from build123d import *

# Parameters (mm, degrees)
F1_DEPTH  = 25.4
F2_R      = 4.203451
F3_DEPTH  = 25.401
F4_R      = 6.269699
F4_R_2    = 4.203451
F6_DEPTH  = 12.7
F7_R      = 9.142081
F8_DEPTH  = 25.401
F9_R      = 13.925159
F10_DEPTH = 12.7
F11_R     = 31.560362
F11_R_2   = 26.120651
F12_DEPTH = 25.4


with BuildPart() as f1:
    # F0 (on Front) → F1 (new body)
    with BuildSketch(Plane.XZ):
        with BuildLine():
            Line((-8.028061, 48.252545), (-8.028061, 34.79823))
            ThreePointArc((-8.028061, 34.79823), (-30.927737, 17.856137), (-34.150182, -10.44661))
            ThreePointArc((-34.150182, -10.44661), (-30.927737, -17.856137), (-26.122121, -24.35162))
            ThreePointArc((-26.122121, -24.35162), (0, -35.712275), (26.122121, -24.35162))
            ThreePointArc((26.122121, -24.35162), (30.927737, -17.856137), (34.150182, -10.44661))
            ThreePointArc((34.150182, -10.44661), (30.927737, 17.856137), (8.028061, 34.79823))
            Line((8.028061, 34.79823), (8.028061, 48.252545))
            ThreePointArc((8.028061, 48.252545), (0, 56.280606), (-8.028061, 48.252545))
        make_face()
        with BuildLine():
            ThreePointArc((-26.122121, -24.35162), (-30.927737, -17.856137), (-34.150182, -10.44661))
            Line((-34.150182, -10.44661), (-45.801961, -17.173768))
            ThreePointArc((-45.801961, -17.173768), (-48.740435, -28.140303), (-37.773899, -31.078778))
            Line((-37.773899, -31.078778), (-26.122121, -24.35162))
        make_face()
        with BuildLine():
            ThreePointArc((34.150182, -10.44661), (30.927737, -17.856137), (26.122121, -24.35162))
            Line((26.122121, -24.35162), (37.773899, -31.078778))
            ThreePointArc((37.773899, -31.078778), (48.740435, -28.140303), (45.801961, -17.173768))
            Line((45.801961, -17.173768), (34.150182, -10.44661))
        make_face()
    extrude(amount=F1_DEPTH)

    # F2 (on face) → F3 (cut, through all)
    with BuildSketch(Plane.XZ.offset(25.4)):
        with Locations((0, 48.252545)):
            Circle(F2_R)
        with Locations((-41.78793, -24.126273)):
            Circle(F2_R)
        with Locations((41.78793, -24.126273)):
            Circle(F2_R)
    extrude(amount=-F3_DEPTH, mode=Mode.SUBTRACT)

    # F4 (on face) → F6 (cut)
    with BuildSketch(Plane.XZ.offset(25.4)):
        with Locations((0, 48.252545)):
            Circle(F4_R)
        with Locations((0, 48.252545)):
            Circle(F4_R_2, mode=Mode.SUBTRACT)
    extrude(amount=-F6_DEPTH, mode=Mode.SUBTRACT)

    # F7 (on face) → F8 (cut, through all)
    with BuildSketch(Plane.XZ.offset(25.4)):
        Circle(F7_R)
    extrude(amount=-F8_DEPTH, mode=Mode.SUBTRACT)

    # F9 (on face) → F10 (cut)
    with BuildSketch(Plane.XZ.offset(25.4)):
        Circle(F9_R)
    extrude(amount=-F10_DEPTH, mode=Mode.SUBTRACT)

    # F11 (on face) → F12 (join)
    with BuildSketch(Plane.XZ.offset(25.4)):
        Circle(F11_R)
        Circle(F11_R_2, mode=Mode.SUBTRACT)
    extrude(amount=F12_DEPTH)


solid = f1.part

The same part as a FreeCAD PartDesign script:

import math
import FreeCAD as App
import Part
import Sketcher
from FreeCAD import Vector
Q = App.Units.Quantity

doc = App.newDocument("Part")
body = doc.addObject("PartDesign::Body", "Body")

# Sketch on XZ plane
sketch1 = doc.addObject("Sketcher::SketchObject", "Sketch")
body.addObject(sketch1)
sketch1.AttachmentSupport = (doc.XZ_Plane, [""])
sketch1.MapMode = "FlatFace"
sketch1.addGeometry(Part.LineSegment(Vector(-8, 48, 0), Vector(-8, 35, 0)), False)
sketch1.addGeometry(Part.ArcOfCircle(Part.Circle(Vector(0, 0, 0), Vector(0, 0, 1), 36), math.radians(103), math.radians(197)), False)
sketch1.addGeometry(Part.LineSegment(Vector(-34, -10, 0), Vector(-46, -17, 0)), False)
sketch1.addGeometry(Part.ArcOfCircle(Part.Circle(Vector(-42, -24, 0), Vector(0, 0, 1), 8), math.radians(120), math.radians(300)), False)
sketch1.addGeometry(Part.LineSegment(Vector(-38, -31, 0), Vector(-26, -24, 0)), False)
sketch1.addGeometry(Part.ArcOfCircle(Part.Circle(Vector(0, 0, 0), Vector(0, 0, 1), 36), math.radians(-137), math.radians(-43)), False)
sketch1.addGeometry(Part.LineSegment(Vector(26, -24, 0), Vector(38, -31, 0)), False)
sketch1.addGeometry(Part.ArcOfCircle(Part.Circle(Vector(42, -24, 0), Vector(0, 0, 1), 8), math.radians(-120), math.radians(60)), False)
sketch1.addGeometry(Part.LineSegment(Vector(46, -17, 0), Vector(34, -10, 0)), False)
sketch1.addGeometry(Part.ArcOfCircle(Part.Circle(Vector(0, 0, 0), Vector(0, 0, 1), 36), math.radians(-17), math.radians(77)), False)
sketch1.addGeometry(Part.LineSegment(Vector(8, 35, 0), Vector(8, 48, 0)), False)
sketch1.addGeometry(Part.ArcOfCircle(Part.Circle(Vector(0, 48, 0), Vector(0, 0, 1), 8), math.radians(0), math.radians(180)), False)
sketch1.addConstraint(Sketcher.Constraint("Coincident", 0, 2, 1, 1))
sketch1.addConstraint(Sketcher.Constraint("Coincident", 1, 2, 2, 1))
sketch1.addConstraint(Sketcher.Constraint("Tangent", 2, 2, 3, 1))
sketch1.addConstraint(Sketcher.Constraint("Tangent", 3, 2, 4, 1))
sketch1.addConstraint(Sketcher.Constraint("Coincident", 4, 2, 5, 1))
sketch1.addConstraint(Sketcher.Constraint("Coincident", 5, 2, 6, 1))
sketch1.addConstraint(Sketcher.Constraint("Tangent", 6, 2, 7, 1))
sketch1.addConstraint(Sketcher.Constraint("Tangent", 7, 2, 8, 1))
sketch1.addConstraint(Sketcher.Constraint("Coincident", 8, 2, 9, 1))
sketch1.addConstraint(Sketcher.Constraint("Coincident", 9, 2, 10, 1))
sketch1.addConstraint(Sketcher.Constraint("Tangent", 10, 2, 11, 1))
sketch1.addConstraint(Sketcher.Constraint("Tangent", 11, 2, 0, 1))
sketch1.addConstraint(Sketcher.Constraint("Vertical", 0))
sketch1.addConstraint(Sketcher.Constraint("Vertical", 10))
sketch1.addConstraint(Sketcher.Constraint("Coincident", 1, 3, -1, 1))
sketch1.addConstraint(Sketcher.Constraint("Coincident", 5, 3, -1, 1))
sketch1.addConstraint(Sketcher.Constraint("Coincident", 9, 3, -1, 1))
sketch1.addConstraint(Sketcher.Constraint("Equal", 1, 5))
sketch1.addConstraint(Sketcher.Constraint("Equal", 3, 7))
sketch1.addConstraint(Sketcher.Constraint("Equal", 5, 9))
sketch1.addConstraint(Sketcher.Constraint("Equal", 7, 11))
sketch1.addConstraint(Sketcher.Constraint("Symmetric", 3, 3, 7, 3, -2))
sketch1.addConstraint(Sketcher.Constraint("PointOnObject", 11, 3, -2))
sketch1.addConstraint(Sketcher.Constraint("Parallel", 2, 4))
sketch1.addConstraint(Sketcher.Constraint("Parallel", 6, 8))
sketch1.addConstraint(Sketcher.Constraint("Horizontal", 4, 2, 5, 2))
sketch1.addConstraint(Sketcher.Constraint("Equal", 2, 4))
sketch1.addConstraint(Sketcher.Constraint("Angle", 2, Q("-149.999999 deg")))
sketch1.addConstraint(Sketcher.Constraint("Radius", 3, 8.028061))
sketch1.addConstraint(Sketcher.Constraint("Radius", 1, 35.712276))
sketch1.addConstraint(Sketcher.Constraint("DistanceX", 3, 2, -1, 1, 37.773899))
sketch1.addConstraint(Sketcher.Constraint("DistanceY", 0, 2, 0, 1, 13.454315))
pad1 = doc.addObject("PartDesign::Pad", "Pad")
body.addObject(pad1)
pad1.Profile = sketch1
pad1.Length = Q("1 in")

# Sketch on XZ plane
sketch2 = doc.addObject("Sketcher::SketchObject", "Sketch001")
body.addObject(sketch2)
sketch2.AttachmentSupport = (doc.XZ_Plane, [""])
sketch2.MapMode = "FlatFace"
sketch2.AttachmentOffset = App.Placement(Vector(0, 0, 1 * 25.4), App.Rotation())
sketch2.addGeometry(Part.Circle(Vector(0, 48.3, 0), Vector(0, 0, 1), 4.2), False)
sketch2.addGeometry(Part.Circle(Vector(-41.8, -24.1, 0), Vector(0, 0, 1), 4.2), False)
sketch2.addGeometry(Part.Circle(Vector(41.8, -24.1, 0), Vector(0, 0, 1), 4.2), False)
sketch2.addConstraint(Sketcher.Constraint("Equal", 0, 1))
sketch2.addConstraint(Sketcher.Constraint("Equal", 1, 2))
sketch2.addConstraint(Sketcher.Constraint("Symmetric", 1, 3, 2, 3, -2))
sketch2.addConstraint(Sketcher.Constraint("PointOnObject", 0, 3, -2))
sketch2.addConstraint(Sketcher.Constraint("Diameter", 0, 8.406902))
sketch2.addConstraint(Sketcher.Constraint("DistanceX", 1, 3, -1, 1, 41.78793))
sketch2.addConstraint(Sketcher.Constraint("DistanceY", -1, 1, 0, 3, 48.252545))
sketch2.addConstraint(Sketcher.Constraint("DistanceY", 1, 3, -1, 1, 24.126273))
pocket1 = doc.addObject("PartDesign::Pocket", "Pocket")
body.addObject(pocket1)
pocket1.Profile = sketch2
pocket1.Type = "ThroughAll"

# Sketch on XZ plane
sketch3 = doc.addObject("Sketcher::SketchObject", "Sketch002")
body.addObject(sketch3)
sketch3.AttachmentSupport = (doc.XZ_Plane, [""])
sketch3.MapMode = "FlatFace"
sketch3.AttachmentOffset = App.Placement(Vector(0, 0, 1 * 25.4), App.Rotation())
sketch3.addGeometry(Part.Circle(Vector(0, 48.3, 0), Vector(0, 0, 1), 6.3), False)
sketch3.addGeometry(Part.Circle(Vector(0, 48.3, 0), Vector(0, 0, 1), 4.2), False)
sketch3.addConstraint(Sketcher.Constraint("Coincident", 1, 3, 0, 3))
sketch3.addConstraint(Sketcher.Constraint("PointOnObject", 0, 3, -2))
sketch3.addConstraint(Sketcher.Constraint("Diameter", 0, 12.539398))
sketch3.addConstraint(Sketcher.Constraint("Diameter", 1, 8.406902))
sketch3.addConstraint(Sketcher.Constraint("DistanceY", -1, 1, 0, 3, 48.252545))
pocket2 = doc.addObject("PartDesign::Pocket", "Pocket001")
body.addObject(pocket2)
pocket2.Profile = sketch3
pocket2.Length = Q("0.5 in")

# Sketch on XZ plane
sketch4 = doc.addObject("Sketcher::SketchObject", "Sketch003")
body.addObject(sketch4)
sketch4.AttachmentSupport = (doc.XZ_Plane, [""])
sketch4.MapMode = "FlatFace"
sketch4.AttachmentOffset = App.Placement(Vector(0, 0, 1 * 25.4), App.Rotation())
sketch4.addGeometry(Part.Circle(Vector(0, 0, 0), Vector(0, 0, 1), 9), False)
sketch4.addConstraint(Sketcher.Constraint("Coincident", 0, 3, -1, 1))
sketch4.addConstraint(Sketcher.Constraint("Diameter", 0, 18.284162))
pocket3 = doc.addObject("PartDesign::Pocket", "Pocket002")
body.addObject(pocket3)
pocket3.Profile = sketch4
pocket3.Type = "ThroughAll"

# Sketch on XZ plane
sketch5 = doc.addObject("Sketcher::SketchObject", "Sketch004")
body.addObject(sketch5)
sketch5.AttachmentSupport = (doc.XZ_Plane, [""])
sketch5.MapMode = "FlatFace"
sketch5.AttachmentOffset = App.Placement(Vector(0, 0, 1 * 25.4), App.Rotation())
sketch5.addGeometry(Part.Circle(Vector(0, 0, 0), Vector(0, 0, 1), 14), False)
sketch5.addConstraint(Sketcher.Constraint("Coincident", 0, 3, -1, 1))
sketch5.addConstraint(Sketcher.Constraint("Diameter", 0, 27.850318))
pocket4 = doc.addObject("PartDesign::Pocket", "Pocket003")
body.addObject(pocket4)
pocket4.Profile = sketch5
pocket4.Length = Q("0.5 in")

# Sketch on XZ plane
sketch6 = doc.addObject("Sketcher::SketchObject", "Sketch005")
body.addObject(sketch6)
sketch6.AttachmentSupport = (doc.XZ_Plane, [""])
sketch6.MapMode = "FlatFace"
sketch6.AttachmentOffset = App.Placement(Vector(0, 0, 1 * 25.4), App.Rotation())
sketch6.addGeometry(Part.Circle(Vector(0, 0, 0), Vector(0, 0, 1), 32), False)
sketch6.addGeometry(Part.Circle(Vector(0, 0, 0), Vector(0, 0, 1), 26), False)
sketch6.addConstraint(Sketcher.Constraint("Coincident", 0, 3, -1, 1))
sketch6.addConstraint(Sketcher.Constraint("Coincident", 1, 3, -1, 1))
sketch6.addConstraint(Sketcher.Constraint("Diameter", 1, 52.241302))
sketch6.addConstraint(Sketcher.Constraint("Diameter", 0, 63.120724))
pad2 = doc.addObject("PartDesign::Pad", "Pad001")
body.addObject(pad2)
pad2.Profile = sketch6
pad2.Length = Q("1 in")

doc.recompute()
